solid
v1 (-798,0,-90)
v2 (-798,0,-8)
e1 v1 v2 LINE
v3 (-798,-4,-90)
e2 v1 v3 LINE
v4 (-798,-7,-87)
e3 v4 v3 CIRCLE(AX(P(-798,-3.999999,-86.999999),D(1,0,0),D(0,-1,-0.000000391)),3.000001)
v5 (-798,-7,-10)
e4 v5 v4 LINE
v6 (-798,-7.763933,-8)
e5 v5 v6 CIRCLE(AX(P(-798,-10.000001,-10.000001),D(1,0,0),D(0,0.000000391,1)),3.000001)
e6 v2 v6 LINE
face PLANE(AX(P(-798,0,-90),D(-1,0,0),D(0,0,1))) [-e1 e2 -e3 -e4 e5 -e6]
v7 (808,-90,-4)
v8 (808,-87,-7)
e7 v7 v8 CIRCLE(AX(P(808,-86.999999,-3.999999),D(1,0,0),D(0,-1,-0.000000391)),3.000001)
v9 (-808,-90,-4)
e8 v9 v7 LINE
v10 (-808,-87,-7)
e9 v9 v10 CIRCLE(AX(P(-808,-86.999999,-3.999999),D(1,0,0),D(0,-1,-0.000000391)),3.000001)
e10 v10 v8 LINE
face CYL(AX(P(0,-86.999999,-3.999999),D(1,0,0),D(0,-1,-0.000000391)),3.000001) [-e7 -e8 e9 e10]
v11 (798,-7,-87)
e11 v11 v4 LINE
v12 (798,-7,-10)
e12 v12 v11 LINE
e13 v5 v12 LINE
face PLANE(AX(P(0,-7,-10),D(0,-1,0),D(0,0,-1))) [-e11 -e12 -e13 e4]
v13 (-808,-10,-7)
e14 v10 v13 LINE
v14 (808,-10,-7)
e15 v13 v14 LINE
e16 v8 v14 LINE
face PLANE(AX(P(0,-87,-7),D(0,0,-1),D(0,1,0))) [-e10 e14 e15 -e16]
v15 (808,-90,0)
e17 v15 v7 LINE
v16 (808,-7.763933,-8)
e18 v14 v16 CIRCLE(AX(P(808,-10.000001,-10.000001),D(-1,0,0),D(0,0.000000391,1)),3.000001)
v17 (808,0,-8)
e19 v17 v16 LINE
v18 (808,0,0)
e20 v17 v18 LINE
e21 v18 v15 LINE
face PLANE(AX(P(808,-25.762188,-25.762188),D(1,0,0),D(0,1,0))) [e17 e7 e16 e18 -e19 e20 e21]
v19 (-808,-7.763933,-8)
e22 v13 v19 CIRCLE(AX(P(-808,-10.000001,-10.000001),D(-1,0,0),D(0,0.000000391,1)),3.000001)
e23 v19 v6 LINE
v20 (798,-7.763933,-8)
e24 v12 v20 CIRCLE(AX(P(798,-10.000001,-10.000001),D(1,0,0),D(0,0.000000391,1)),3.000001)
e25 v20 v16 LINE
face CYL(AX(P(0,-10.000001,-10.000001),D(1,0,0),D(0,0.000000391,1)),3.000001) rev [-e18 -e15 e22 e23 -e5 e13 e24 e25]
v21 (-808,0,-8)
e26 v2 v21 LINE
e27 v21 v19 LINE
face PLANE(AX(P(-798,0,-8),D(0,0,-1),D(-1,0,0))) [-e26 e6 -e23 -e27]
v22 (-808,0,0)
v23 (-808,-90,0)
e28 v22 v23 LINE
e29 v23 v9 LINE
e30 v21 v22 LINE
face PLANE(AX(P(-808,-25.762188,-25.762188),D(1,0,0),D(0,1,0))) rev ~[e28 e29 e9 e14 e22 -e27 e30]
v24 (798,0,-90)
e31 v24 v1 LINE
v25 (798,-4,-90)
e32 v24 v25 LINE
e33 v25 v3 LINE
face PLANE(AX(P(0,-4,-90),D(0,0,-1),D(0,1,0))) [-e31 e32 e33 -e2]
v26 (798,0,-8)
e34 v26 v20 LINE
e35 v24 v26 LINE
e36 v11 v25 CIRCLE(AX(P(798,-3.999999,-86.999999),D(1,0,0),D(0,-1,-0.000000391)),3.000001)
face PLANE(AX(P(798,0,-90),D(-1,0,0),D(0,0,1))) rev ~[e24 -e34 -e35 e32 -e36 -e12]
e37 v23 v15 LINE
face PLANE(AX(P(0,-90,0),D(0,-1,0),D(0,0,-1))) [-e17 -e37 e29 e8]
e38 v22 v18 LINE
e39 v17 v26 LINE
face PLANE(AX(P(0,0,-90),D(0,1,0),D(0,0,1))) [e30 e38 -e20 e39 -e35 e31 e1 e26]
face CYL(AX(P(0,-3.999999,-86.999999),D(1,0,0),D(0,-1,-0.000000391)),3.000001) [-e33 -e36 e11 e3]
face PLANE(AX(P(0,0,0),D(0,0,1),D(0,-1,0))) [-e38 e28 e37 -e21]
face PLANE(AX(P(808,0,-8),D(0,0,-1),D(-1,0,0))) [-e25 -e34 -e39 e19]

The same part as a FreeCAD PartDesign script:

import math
import FreeCAD as App
import Part
import Sketcher

V = App.Vector

doc = App.newDocument("Part")
body = doc.addObject("PartDesign::Body", "Body")

# Sketch on YZ plane
sketch1 = body.newObject("Sketcher::SketchObject", "Sketch")
sketch1.AttachmentSupport = (doc.getObject("YZ_Plane"), [""])
sketch1.MapMode = "FlatFace"
sketch1.addGeometry([
    Part.LineSegment(V(0, -90, 0), V(0, 0, 0)),  # 0
    Part.LineSegment(V(0, 0, 0), V(-90, 0, 0)),  # 1
    Part.LineSegment(V(-90, 0, 0), V(-90, -4, 0)),  # 2
    Part.ArcOfCircle(Part.Circle(V(-87, -4, 0), V(0, 0, 1), 3), math.radians(-180), math.radians(-90)),  # 3
    Part.LineSegment(V(-87, -7, 0), V(-10, -7, 0)),  # 4
    Part.ArcOfCircle(Part.Circle(V(-10, -10, 0), V(0, 0, 1), 3), math.radians(0), math.radians(90)),  # 5
    Part.LineSegment(V(-7, -10, 0), V(-7, -87, 0)),  # 6
    Part.ArcOfCircle(Part.Circle(V(-4, -87, 0), V(0, 0, 1), 3), math.radians(-180), math.radians(-90)),  # 7
    Part.LineSegment(V(-4, -90, 0), V(0, -90, 0)),  # 8
], False)
sketch1.addConstraint([
    Sketcher.Constraint("Coincident", 0, 2, 1, 1),
    Sketcher.Constraint("Coincident", 1, 2, 2, 1),
    Sketcher.Constraint("Tangent", 2, 2, 3, 1),
    Sketcher.Constraint("Tangent", 3, 2, 4, 1),
    Sketcher.Constraint("Tangent", 4, 2, 5, 2),
    Sketcher.Constraint("Tangent", 5, 1, 6, 1),
    Sketcher.Constraint("Tangent", 6, 2, 7, 1),
    Sketcher.Constraint("Tangent", 7, 2, 8, 1),
    Sketcher.Constraint("Coincident", 8, 2, 0, 1),
    Sketcher.Constraint("Vertical", 0),
    Sketcher.Constraint("Horizontal", 1),
    Sketcher.Constraint("Vertical", 2),
    Sketcher.Constraint("Horizontal", 4),
    Sketcher.Constraint("Vertical", 6),
    Sketcher.Constraint("Horizontal", 8),
    Sketcher.Constraint("Coincident", 0, 2, -1, 1),
    Sketcher.Constraint("Equal", 3, 5),
    Sketcher.Constraint("Equal", 5, 7),
    Sketcher.Constraint("Equal", 1, 0),
    Sketcher.Constraint("Equal", 8, 2),
    Sketcher.Constraint("Radius", 3, 3.000001),
    Sketcher.Constraint("DistanceX", 1, 2, 1, 1, 90.0),
    Sketcher.Constraint("DistanceX", 4, 1, 4, 2, 77.0),
])
pad1 = body.newObject("PartDesign::Pad", "Pad")
pad1.Profile = sketch1
pad1.Length = 1616
pad1.Midplane = True

# Sketch on XZ plane
sketch2 = body.newObject("Sketcher::SketchObject", "Sketch001")
sketch2.AttachmentSupport = (doc.getObject("XZ_Plane"), [""])
sketch2.MapMode = "FlatFace"
sketch2.addGeometry([
    Part.LineSegment(V(808, -8, 0), V(808, -90, 0)),  # 0
    Part.LineSegment(V(808, -90, 0), V(798, -90, 0)),  # 1
    Part.LineSegment(V(798, -90, 0), V(798, -8, 0)),  # 2
    Part.LineSegment(V(798, -8, 0), V(808, -8, 0)),  # 3
    Part.LineSegment(V(-798, -8, 0), V(-798, -90, 0)),  # 4
    Part.LineSegment(V(-798, -90, 0), V(-808, -90, 0)),  # 5
    Part.LineSegment(V(-808, -90, 0), V(-808, -8, 0)),  # 6
    Part.LineSegment(V(-808, -8, 0), V(-798, -8, 0)),  # 7
], False)
sketch2.addConstraint([
    Sketcher.Constraint("Coincident", 0, 2, 1, 1),
    Sketcher.Constraint("Coincident", 1, 2, 2, 1),
    Sketcher.Constraint("Coincident", 2, 2, 3, 1),
    Sketcher.Constraint("Coincident", 3, 2, 0, 1),
    Sketcher.Constraint("Coincident", 4, 2, 5, 1),
    Sketcher.Constraint("Coincident", 5, 2, 6, 1),
    Sketcher.Constraint("Coincident", 6, 2, 7, 1),
    Sketcher.Constraint("Coincident", 7, 2, 4, 1),
    Sketcher.Constraint("Vertical", 0),
    Sketcher.Constraint("Horizontal", 1),
    Sketcher.Constraint("Vertical", 2),
    Sketcher.Constraint("Horizontal", 3),
    Sketcher.Constraint("Vertical", 4),
    Sketcher.Constraint("Horizontal", 5),
    Sketcher.Constraint("Vertical", 6),
    Sketcher.Constraint("Horizontal", 7),
    Sketcher.Constraint("Symmetric", 1, 2, 4, 2, -2),
    Sketcher.Constraint("Symmetric", 3, 2, 6, 2, -2),
    Sketcher.Constraint("DistanceX", 1, 2, 1, 1, 10.0),
    Sketcher.Constraint("DistanceY", 0, 2, 0, 1, 82.0),
    Sketcher.Constraint("DistanceX", -1, 1, 0, 2, 808.0),
    Sketcher.Constraint("DistanceY", 0, 2, -1, 1, 90.0),
])
pocket1 = body.newObject("PartDesign::Pocket", "Pocket")
pocket1.Profile = sketch2
pocket1.Length = 25
pocket1.Reversed = True

doc.recompute()
